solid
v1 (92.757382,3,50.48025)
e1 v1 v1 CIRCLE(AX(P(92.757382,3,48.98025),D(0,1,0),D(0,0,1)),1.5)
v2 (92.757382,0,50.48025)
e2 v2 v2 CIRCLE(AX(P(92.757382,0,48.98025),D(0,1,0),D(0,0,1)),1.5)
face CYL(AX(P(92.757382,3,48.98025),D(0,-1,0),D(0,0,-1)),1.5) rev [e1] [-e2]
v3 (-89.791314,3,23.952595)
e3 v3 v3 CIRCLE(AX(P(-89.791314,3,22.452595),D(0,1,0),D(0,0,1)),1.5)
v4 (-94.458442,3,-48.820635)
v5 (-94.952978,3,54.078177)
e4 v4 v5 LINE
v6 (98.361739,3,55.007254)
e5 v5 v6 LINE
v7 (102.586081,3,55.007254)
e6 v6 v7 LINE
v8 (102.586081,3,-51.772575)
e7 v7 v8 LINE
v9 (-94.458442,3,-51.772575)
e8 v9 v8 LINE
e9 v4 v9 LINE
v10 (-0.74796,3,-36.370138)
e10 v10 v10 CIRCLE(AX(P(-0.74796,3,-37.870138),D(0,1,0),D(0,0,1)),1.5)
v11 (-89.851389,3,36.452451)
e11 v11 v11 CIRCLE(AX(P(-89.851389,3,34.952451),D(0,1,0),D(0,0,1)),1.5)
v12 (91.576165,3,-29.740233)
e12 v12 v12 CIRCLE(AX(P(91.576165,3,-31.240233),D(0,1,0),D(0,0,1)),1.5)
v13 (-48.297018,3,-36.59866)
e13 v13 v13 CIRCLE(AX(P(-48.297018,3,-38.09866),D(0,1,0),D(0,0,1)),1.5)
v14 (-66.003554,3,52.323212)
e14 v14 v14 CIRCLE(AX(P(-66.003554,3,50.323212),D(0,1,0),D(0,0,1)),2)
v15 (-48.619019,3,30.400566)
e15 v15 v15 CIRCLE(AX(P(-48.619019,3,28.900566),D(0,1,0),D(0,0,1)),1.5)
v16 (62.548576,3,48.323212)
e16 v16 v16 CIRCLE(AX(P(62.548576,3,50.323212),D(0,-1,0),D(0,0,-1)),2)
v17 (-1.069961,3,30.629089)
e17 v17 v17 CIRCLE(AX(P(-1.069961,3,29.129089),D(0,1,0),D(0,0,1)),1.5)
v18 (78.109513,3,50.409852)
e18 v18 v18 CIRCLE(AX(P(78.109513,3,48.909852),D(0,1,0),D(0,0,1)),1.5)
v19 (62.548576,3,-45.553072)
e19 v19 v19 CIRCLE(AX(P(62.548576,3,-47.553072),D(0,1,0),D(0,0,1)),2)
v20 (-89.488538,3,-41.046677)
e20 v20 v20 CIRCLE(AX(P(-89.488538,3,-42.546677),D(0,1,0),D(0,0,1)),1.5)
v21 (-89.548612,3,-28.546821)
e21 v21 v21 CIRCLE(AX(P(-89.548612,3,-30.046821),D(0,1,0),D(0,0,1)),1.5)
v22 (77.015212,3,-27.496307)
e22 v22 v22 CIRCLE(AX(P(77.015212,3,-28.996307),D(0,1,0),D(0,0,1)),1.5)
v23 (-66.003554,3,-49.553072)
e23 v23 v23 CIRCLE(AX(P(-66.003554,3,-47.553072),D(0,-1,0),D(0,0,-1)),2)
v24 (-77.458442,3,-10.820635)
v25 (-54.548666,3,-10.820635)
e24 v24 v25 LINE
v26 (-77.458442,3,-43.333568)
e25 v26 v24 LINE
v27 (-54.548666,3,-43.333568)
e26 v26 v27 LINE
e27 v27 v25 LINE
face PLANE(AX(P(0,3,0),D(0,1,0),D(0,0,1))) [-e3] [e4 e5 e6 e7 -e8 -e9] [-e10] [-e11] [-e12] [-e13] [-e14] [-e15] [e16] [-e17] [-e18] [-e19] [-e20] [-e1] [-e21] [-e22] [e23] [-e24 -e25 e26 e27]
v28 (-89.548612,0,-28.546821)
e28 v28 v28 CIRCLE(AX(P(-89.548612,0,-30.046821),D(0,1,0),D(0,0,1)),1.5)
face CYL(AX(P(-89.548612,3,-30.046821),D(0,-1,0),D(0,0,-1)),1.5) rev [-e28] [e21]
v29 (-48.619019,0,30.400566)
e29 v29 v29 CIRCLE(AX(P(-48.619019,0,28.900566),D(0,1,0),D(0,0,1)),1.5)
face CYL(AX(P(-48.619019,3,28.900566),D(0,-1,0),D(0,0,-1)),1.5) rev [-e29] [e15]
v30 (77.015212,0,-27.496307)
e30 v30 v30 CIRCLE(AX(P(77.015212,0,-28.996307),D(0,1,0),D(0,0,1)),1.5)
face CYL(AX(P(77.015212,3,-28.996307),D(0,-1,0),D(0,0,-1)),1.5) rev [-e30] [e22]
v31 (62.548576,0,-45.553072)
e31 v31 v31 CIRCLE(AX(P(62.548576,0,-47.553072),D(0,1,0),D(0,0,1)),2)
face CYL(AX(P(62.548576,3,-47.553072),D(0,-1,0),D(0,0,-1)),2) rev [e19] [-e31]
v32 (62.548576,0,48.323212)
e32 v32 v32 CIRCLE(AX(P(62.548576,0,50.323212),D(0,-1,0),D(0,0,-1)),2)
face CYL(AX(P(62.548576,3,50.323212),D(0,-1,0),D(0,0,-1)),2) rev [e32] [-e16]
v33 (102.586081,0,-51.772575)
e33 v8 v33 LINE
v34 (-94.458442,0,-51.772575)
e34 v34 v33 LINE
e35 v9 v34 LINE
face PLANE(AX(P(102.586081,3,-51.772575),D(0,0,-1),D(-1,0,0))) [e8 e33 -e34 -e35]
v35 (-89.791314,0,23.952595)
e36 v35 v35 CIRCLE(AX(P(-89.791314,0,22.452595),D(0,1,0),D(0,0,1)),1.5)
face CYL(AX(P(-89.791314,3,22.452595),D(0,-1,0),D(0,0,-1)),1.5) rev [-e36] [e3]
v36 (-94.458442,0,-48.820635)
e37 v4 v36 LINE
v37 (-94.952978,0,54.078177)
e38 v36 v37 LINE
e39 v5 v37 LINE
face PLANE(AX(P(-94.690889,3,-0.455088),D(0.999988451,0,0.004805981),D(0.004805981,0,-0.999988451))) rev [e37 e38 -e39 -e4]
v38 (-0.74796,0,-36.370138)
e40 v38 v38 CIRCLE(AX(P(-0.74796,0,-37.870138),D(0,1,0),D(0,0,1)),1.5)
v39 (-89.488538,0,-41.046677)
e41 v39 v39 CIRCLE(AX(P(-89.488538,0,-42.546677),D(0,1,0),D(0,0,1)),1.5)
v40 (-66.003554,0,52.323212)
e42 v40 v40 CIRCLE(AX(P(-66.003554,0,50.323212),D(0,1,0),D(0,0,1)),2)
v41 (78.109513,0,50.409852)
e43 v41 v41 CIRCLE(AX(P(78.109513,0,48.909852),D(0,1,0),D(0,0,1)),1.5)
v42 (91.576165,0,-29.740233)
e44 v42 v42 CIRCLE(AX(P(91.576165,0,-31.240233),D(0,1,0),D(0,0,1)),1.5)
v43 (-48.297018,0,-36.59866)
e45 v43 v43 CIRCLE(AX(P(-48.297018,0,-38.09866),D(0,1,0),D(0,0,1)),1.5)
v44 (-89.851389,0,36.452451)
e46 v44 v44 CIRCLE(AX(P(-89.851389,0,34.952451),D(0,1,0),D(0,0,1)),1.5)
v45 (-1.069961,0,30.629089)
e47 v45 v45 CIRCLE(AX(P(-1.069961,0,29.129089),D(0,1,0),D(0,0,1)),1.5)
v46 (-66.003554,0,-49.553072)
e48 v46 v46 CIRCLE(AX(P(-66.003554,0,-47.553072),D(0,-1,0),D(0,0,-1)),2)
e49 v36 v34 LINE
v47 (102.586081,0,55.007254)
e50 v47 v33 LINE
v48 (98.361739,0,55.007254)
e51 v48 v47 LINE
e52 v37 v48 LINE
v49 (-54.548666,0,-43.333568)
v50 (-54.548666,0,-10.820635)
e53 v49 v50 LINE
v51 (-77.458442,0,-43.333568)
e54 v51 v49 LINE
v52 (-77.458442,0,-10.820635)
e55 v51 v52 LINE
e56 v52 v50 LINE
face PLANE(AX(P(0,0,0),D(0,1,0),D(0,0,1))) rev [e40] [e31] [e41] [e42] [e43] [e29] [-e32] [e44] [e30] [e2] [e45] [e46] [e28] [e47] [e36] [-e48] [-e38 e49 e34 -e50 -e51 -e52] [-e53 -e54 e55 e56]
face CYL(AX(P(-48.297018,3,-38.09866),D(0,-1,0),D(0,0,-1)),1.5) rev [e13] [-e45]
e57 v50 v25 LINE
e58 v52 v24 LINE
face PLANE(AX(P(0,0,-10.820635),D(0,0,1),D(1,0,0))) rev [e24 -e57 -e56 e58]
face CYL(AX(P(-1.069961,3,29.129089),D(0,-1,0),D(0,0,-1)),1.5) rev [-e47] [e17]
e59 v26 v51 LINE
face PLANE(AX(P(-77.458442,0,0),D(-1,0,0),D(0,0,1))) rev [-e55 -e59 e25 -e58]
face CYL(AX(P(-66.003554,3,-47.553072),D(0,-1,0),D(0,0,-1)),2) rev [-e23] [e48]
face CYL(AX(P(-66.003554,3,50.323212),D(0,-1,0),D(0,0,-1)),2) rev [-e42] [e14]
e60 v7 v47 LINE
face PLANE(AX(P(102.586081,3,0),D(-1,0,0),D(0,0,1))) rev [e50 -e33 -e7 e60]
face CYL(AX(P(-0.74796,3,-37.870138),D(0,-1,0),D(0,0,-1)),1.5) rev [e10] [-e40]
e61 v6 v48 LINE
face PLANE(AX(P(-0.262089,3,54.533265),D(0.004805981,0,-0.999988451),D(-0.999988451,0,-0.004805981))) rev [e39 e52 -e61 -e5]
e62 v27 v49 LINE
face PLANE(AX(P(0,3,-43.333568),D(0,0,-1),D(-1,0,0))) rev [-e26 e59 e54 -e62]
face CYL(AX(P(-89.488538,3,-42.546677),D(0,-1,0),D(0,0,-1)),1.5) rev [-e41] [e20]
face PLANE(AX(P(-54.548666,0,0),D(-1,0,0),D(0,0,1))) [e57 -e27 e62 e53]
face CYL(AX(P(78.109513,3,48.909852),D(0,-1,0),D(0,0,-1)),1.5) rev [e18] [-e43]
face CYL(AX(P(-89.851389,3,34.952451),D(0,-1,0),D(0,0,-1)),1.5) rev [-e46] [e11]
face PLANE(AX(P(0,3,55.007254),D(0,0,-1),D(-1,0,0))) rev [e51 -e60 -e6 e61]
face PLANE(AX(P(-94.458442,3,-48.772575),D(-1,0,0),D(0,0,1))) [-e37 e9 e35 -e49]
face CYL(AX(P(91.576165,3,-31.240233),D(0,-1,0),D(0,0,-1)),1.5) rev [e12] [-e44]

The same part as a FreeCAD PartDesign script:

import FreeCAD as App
import Part
import Sketcher
Q = App.Units.Quantity

doc = App.newDocument("Part")
params = doc.addObject("Spreadsheet::Sheet", "Params")
for row, (alias, value) in enumerate([
    ("sketch1_diameter", "3 mm"),
    ("sketch1_length", "10 mm"),
    ("sketch1_length2", "25 mm"),
    ("sketch1_length3", "63 mm"),
    ("sketch1_length4", "14.9 mm"),
    ("pad1_length", "3 mm"),
    ("pad2_length", "3 mm"),
    ("sketch4_height", "3 mm"),
    ("pad3_length", "3 mm"),
    ("sketch5_diameter", "4 mm"),
], start=1):
    params.set(f"A{row}", alias)
    params.set(f"B{row}", "=" + value)
    params.setAlias(f"B{row}", alias)

body = doc.addObject("PartDesign::Body", "Body")

sketch1 = body.newObject("Sketcher::SketchObject", "Sketch")
sketch1.AttachmentSupport = (doc.getObject("XZ_Plane"), [""])
sketch1.MapMode = "FlatFace"
sketch1.addGeometry(Part.LineSegment(App.Vector(-84.5, -26.8, 0), App.Vector(-84.5, -48.8, 0)), False)
sketch1.addGeometry(Part.LineSegment(App.Vector(-84.5, -48.8, 0), App.Vector(-94.5, -48.8, 0)), False)
sketch1.addGeometry(Part.LineSegment(App.Vector(-94.5, -48.8, 0), App.Vector(-94.6, -23.8, 0)), False)
sketch1.addGeometry(Part.LineSegment(App.Vector(-94.6, -23.8, 0), App.Vector(-94.9, 39.2, 0)), False)
sketch1.addGeometry(Part.LineSegment(App.Vector(-94.9, 39.2, 0), App.Vector(-95, 54.1, 0)), False)
sketch1.addGeometry(Part.LineSegment(App.Vector(-95, 54.1, 0), App.Vector(98.4, 55, 0)), False)
sketch1.addGeometry(Part.LineSegment(App.Vector(98.4, 55, 0), App.Vector(102.6, 55, 0)), False)
sketch1.addGeometry(Part.LineSegment(App.Vector(102.6, 55, 0), App.Vector(102.6, -48.8, 0)), False)
sketch1.addGeometry(Part.LineSegment(App.Vector(102.6, -48.8, 0), App.Vector(-62.7, -48.8, 0)), False)
sketch1.addGeometry(Part.LineSegment(App.Vector(-62.7, -48.8, 0), App.Vector(-62.7, -26.8, 0)), False)
sketch1.addGeometry(Part.LineSegment(App.Vector(-62.7, -26.8, 0), App.Vector(-84.5, -26.8, 0)), False)
sketch1.addGeometry(Part.Circle(App.Vector(-89.9, 35, 0), App.Vector(0, 0, 1), 1.5), False)
sketch1.addGeometry(Part.Circle(App.Vector(-48.6, 28.9, 0), App.Vector(0, 0, 1), 1.5), False)
sketch1.addGeometry(Part.Circle(App.Vector(-1.1, 29.1, 0), App.Vector(0, 0, 1), 1.5), False)
sketch1.addGeometry(Part.Circle(App.Vector(-89.8, 22.5, 0), App.Vector(0, 0, 1), 1.5), False)
sketch1.addGeometry(Part.Circle(App.Vector(78.1, 48.9, 0), App.Vector(0, 0, 1), 1.5), False)
sketch1.addGeometry(Part.Circle(App.Vector(92.8, 49, 0), App.Vector(0, 0, 1), 1.5), False)
sketch1.addGeometry(Part.Circle(App.Vector(-89.5, -30, 0), App.Vector(0, 0, 1), 1.5), False)
sketch1.addGeometry(Part.Circle(App.Vector(-89.5, -42.5, 0), App.Vector(0, 0, 1), 1.5), False)
sketch1.addGeometry(Part.Circle(App.Vector(-48.3, -38.1, 0), App.Vector(0, 0, 1), 1.5), False)
sketch1.addGeometry(Part.Circle(App.Vector(-0.7, -37.9, 0), App.Vector(0, 0, 1), 1.5), False)
sketch1.addGeometry(Part.Circle(App.Vector(77, -29, 0), App.Vector(0, 0, 1), 1.5), False)
sketch1.addGeometry(Part.Circle(App.Vector(91.6, -31.2, 0), App.Vector(0, 0, 1), 1.5), False)
sketch1.addConstraint(Sketcher.Constraint("Coincident", 0, 2, 1, 1))
sketch1.addConstraint(Sketcher.Constraint("Coincident", 1, 2, 2, 1))
sketch1.addConstraint(Sketcher.Constraint("Coincident", 2, 2, 3, 1))
sketch1.addConstraint(Sketcher.Constraint("Coincident", 3, 2, 4, 1))
sketch1.addConstraint(Sketcher.Constraint("Coincident", 4, 2, 5, 1))
sketch1.addConstraint(Sketcher.Constraint("Coincident", 5, 2, 6, 1))
sketch1.addConstraint(Sketcher.Constraint("Coincident", 6, 2, 7, 1))
sketch1.addConstraint(Sketcher.Constraint("Coincident", 7, 2, 8, 1))
sketch1.addConstraint(Sketcher.Constraint("Coincident", 8, 2, 9, 1))
sketch1.addConstraint(Sketcher.Constraint("Coincident", 9, 2, 10, 1))
sketch1.addConstraint(Sketcher.Constraint("Coincident", 10, 2, 0, 1))
sketch1.addConstraint(Sketcher.Constraint("Vertical", 0))
sketch1.addConstraint(Sketcher.Constraint("Horizontal", 6))
sketch1.addConstraint(Sketcher.Constraint("Vertical", 7))
sketch1.addConstraint(Sketcher.Constraint("Horizontal", 8))
sketch1.addConstraint(Sketcher.Constraint("Vertical", 9))
sketch1.addConstraint(Sketcher.Constraint("Horizontal", 10))
sketch1.addConstraint(Sketcher.Constraint("Equal", 11, 12))
sketch1.addConstraint(Sketcher.Constraint("Equal", 12, 13))
sketch1.addConstraint(Sketcher.Constraint("Equal", 13, 14))
sketch1.addConstraint(Sketcher.Constraint("Equal", 14, 15))
sketch1.addConstraint(Sketcher.Constraint("Equal", 15, 16))
sketch1.addConstraint(Sketcher.Constraint("Equal", 16, 17))
sketch1.addConstraint(Sketcher.Constraint("Equal", 17, 18))
sketch1.addConstraint(Sketcher.Constraint("Equal", 18, 19))
sketch1.addConstraint(Sketcher.Constraint("Equal", 19, 20))
sketch1.addConstraint(Sketcher.Constraint("Equal", 20, 21))
sketch1.addConstraint(Sketcher.Constraint("Equal", 21, 22))
sketch1.addConstraint(Sketcher.Constraint("Perpendicular", 1, 2))
sketch1.addConstraint(Sketcher.Constraint("Parallel", 2, 3))
sketch1.addConstraint(Sketcher.Constraint("Parallel", 3, 4))
sketch1.addConstraint(Sketcher.Constraint("Perpendicular", 4, 5))
sketch1.addConstraint(Sketcher.Constraint("Horizontal", 0, 2, 7, 2))
sketch1.addConstraint(Sketcher.Constraint("Diameter", 11, Q("3 mm")))
sketch1.addConstraint(Sketcher.Constraint("Distance", 1, Q("10 mm")))
sketch1.addConstraint(Sketcher.Constraint("Distance", 2, Q("25 mm")))
sketch1.addConstraint(Sketcher.Constraint("Distance", 3, Q("63 mm")))
sketch1.addConstraint(Sketcher.Constraint("Distance", 4, Q("14.9 mm")))
sketch1.addConstraint(Sketcher.Constraint("DistanceX", 12, 3, 19, 3, Q("0.322001 mm")))
sketch1.addConstraint(Sketcher.Constraint("DistanceX", 13, 3, 20, 3, Q("0.322001 mm")))
sketch1.addConstraint(Sketcher.Constraint("DistanceX", 6, 1, 6, 2, Q("4.224341 mm")))
sketch1.addConstraint(Sketcher.Constraint("DistanceX", 8, 2, 8, 1, Q("165.25171 mm")))
sketch1.addConstraint(Sketcher.Constraint("DistanceX", 10, 2, 10, 1, Q("21.792929 mm")))
sketch1.addConstraint(Sketcher.Constraint("DistanceY", 7, 2, 7, 1, Q("103.779829 mm")))
sketch1.addConstraint(Sketcher.Constraint("DistanceY", 11, 3, 15, 3, Q("13.957401 mm")))
sketch1.addConstraint(Sketcher.Constraint("DistanceY", 15, 3, 16, 3, Q("0.070398 mm")))
sketch1.addConstraint(Sketcher.Constraint("DistanceX", 12, 3, 16, 3, Q("141.376401 mm")))
sketch1.addConstraint(Sketcher.Constraint("DistanceX", 21, 3, 15, 3, Q("1.094301 mm")))
sketch1.addConstraint(Sketcher.Constraint("DistanceX", 13, 3, 5, 2, Q("99.4317 mm")))
sketch1.addConstraint(Sketcher.Constraint("DistanceX", 16, 3, 6, 2, Q("9.828699 mm")))
sketch1.addConstraint(Sketcher.Constraint("DistanceY", 0, 2, 0, 1, Q("21.938607 mm")))
sketch1.addConstraint(Sketcher.Constraint("DistanceX", 11, 3, -1, 1, Q("89.851389 mm")))
sketch1.addConstraint(Sketcher.Constraint("DistanceY", -1, 1, 11, 3, Q("34.952451 mm")))
sketch1.addConstraint(Sketcher.Constraint("DistanceX", 12, 3, -1, 1, Q("48.619019 mm")))
sketch1.addConstraint(Sketcher.Constraint("DistanceY", -1, 1, 13, 3, Q("29.129089 mm")))
sketch1.addConstraint(Sketcher.Constraint("DistanceY", 17, 3, -1, 1, Q("30.046821 mm")))
sketch1.addConstraint(Sketcher.Constraint("DistanceY", 19, 3, -1, 1, Q("38.09866 mm")))
sketch1.addConstraint(Sketcher.Constraint("DistanceY", -1, 1, 3, 2, Q("39.178349 mm")))
sketch1.addConstraint(Sketcher.Constraint("DistanceY", 14, 3, 12, 3, Q("6.447971 mm")))
sketch1.addConstraint(Sketcher.Constraint("DistanceX", 12, 3, 15, 3, Q("126.728532 mm")))
sketch1.addConstraint(Sketcher.Constraint("DistanceX", 17, 3, 13, 3, Q("88.478651 mm")))
sketch1.addConstraint(Sketcher.Constraint("DistanceX", 11, 3, 18, 3, Q("0.362852 mm")))
sketch1.addConstraint(Sketcher.Constraint("DistanceY", 18, 3, 11, 3, Q("77.499128 mm")))
sketch1.addConstraint(Sketcher.Constraint("DistanceY", 18, 3, 20, 3, Q("4.676539 mm")))
sketch1.addConstraint(Sketcher.Constraint("DistanceY", 21, 3, 15, 3, Q("77.906159 mm")))
sketch1.addConstraint(Sketcher.Constraint("DistanceX", 15, 3, 22, 3, Q("13.466652 mm")))
sketch1.addConstraint(Sketcher.Constraint("DistanceY", 22, 3, 13, 3, Q("60.369321 mm")))
sketch1.addConstraint(Sketcher.Constraint("DistanceY", 0, 2, 14, 3, Q("71.22517 mm")))
sketch1.addConstraint(Sketcher.Constraint("DistanceX", 1, 2, 14, 3, Q("4.667128 mm")))
sketch1.setExpression("Constraints[33]", "Params.sketch1_diameter")
sketch1.setExpression("Constraints[34]", "Params.sketch1_length")
sketch1.setExpression("Constraints[35]", "Params.sketch1_length2")
sketch1.setExpression("Constraints[36]", "Params.sketch1_length3")
sketch1.setExpression("Constraints[37]", "Params.sketch1_length4")
pad1 = body.newObject("PartDesign::Pad", "Pad")
pad1.Profile = sketch1
pad1.setExpression("Length", "Params.pad1_length")
pad1.Reversed = True

sketch2 = body.newObject("Sketcher::SketchObject", "Sketch001")
sketch2.AttachmentSupport = (doc.getObject("XZ_Plane"), [""])
sketch2.MapMode = "FlatFace"
sketch2.AttachmentOffset = App.Placement(App.Vector(0, 0, -3), App.Rotation())
sketch2.addGeometry(Part.LineSegment(App.Vector(-63, -27, 0), App.Vector(-77, -27, 0)), False)
sketch2.addGeometry(Part.LineSegment(App.Vector(-77, -27, 0), App.Vector(-77, -11, 0)), False)
sketch2.addGeometry(Part.LineSegment(App.Vector(-77, -11, 0), App.Vector(-55, -11, 0)), False)
sketch2.addGeometry(Part.LineSegment(App.Vector(-55, -11, 0), App.Vector(-55, -49, 0)), False)
sketch2.addGeometry(Part.LineSegment(App.Vector(-55, -49, 0), App.Vector(-63, -49, 0)), False)
sketch2.addGeometry(Part.LineSegment(App.Vector(-63, -49, 0), App.Vector(-63, -27, 0)), False)
sketch2.addConstraint(Sketcher.Constraint("Coincident", 0, 2, 1, 1))
sketch2.addConstraint(Sketcher.Constraint("Coincident", 1, 2, 2, 1))
sketch2.addConstraint(Sketcher.Constraint("Coincident", 2, 2, 3, 1))
sketch2.addConstraint(Sketcher.Constraint("Coincident", 3, 2, 4, 1))
sketch2.addConstraint(Sketcher.Constraint("Coincident", 4, 2, 5, 1))
sketch2.addConstraint(Sketcher.Constraint("Coincident", 5, 2, 0, 1))
sketch2.addConstraint(Sketcher.Constraint("Horizontal", 0))
sketch2.addConstraint(Sketcher.Constraint("Vertical", 1))
sketch2.addConstraint(Sketcher.Constraint("Horizontal", 2))
sketch2.addConstraint(Sketcher.Constraint("Vertical", 3))
sketch2.addConstraint(Sketcher.Constraint("Horizontal", 4))
sketch2.addConstraint(Sketcher.Constraint("Vertical", 5))
sketch2.addConstraint(Sketcher.Constraint("DistanceY", 3, 2, 3, 1, Q("37.95194 mm")))
sketch2.addConstraint(Sketcher.Constraint("DistanceX", 0, 2, 0, 1, Q("14.792813 mm")))
sketch2.addConstraint(Sketcher.Constraint("DistanceX", 2, 1, 2, 2, Q("22.909776 mm")))
sketch2.addConstraint(Sketcher.Constraint("DistanceY", 1, 1, 1, 2, Q("16.013333 mm")))
sketch2.addConstraint(Sketcher.Constraint("DistanceY", 0, 2, -1, 1, Q("26.833968 mm")))
sketch2.addConstraint(Sketcher.Constraint("DistanceX", 4, 2, -1, 1, Q("62.665629 mm")))
pocket1 = body.newObject("PartDesign::Pocket", "Pocket")
pocket1.Profile = sketch2
pocket1.Type = "ThroughAll"
pocket1.Midplane = True

sketch3 = body.newObject("Sketcher::SketchObject", "Sketch002")
sketch3.AttachmentSupport = (doc.getObject("XZ_Plane"), [""])
sketch3.MapMode = "FlatFace"
sketch3.addGeometry(Part.LineSegment(App.Vector(-77, -27, 0), App.Vector(-84, -27, 0)), False)
sketch3.addGeometry(Part.LineSegment(App.Vector(-84, -27, 0), App.Vector(-84, -49, 0)), False)
sketch3.addGeometry(Part.LineSegment(App.Vector(-84, -49, 0), App.Vector(-55, -49, 0)), False)
sketch3.addGeometry(Part.LineSegment(App.Vector(-55, -49, 0), App.Vector(-55, -43, 0)), False)
sketch3.addGeometry(Part.LineSegment(App.Vector(-55, -43, 0), App.Vector(-77, -43, 0)), False)
sketch3.addGeometry(Part.LineSegment(App.Vector(-77, -43, 0), App.Vector(-77, -27, 0)), False)
sketch3.addConstraint(Sketcher.Constraint("Coincident", 0, 2, 1, 1))
sketch3.addConstraint(Sketcher.Constraint("Coincident", 1, 2, 2, 1))
sketch3.addConstraint(Sketcher.Constraint("Coincident", 2, 2, 3, 1))
sketch3.addConstraint(Sketcher.Constraint("Coincident", 3, 2, 4, 1))
sketch3.addConstraint(Sketcher.Constraint("Coincident", 4, 2, 5, 1))
sketch3.addConstraint(Sketcher.Constraint("Coincident", 5, 2, 0, 1))
sketch3.addConstraint(Sketcher.Constraint("Horizontal", 0))
sketch3.addConstraint(Sketcher.Constraint("Vertical", 1))
sketch3.addConstraint(Sketcher.Constraint("Horizontal", 2))
sketch3.addConstraint(Sketcher.Constraint("Vertical", 3))
sketch3.addConstraint(Sketcher.Constraint("Horizontal", 4))
sketch3.addConstraint(Sketcher.Constraint("Vertical", 5))
sketch3.addConstraint(Sketcher.Constraint("DistanceY", 5, 1, 5, 2, Q("16.4996 mm")))
sketch3.addConstraint(Sketcher.Constraint("DistanceX", 2, 1, 2, 2, Q("29.909891 mm")))
sketch3.addConstraint(Sketcher.Constraint("DistanceX", 0, 2, 0, 1, Q("7.000115 mm")))
sketch3.addConstraint(Sketcher.Constraint("DistanceY", 1, 2, 1, 1, Q("21.938607 mm")))
sketch3.addConstraint(Sketcher.Constraint("DistanceY", 0, 2, -1, 1, Q("26.833968 mm")))
sketch3.addConstraint(Sketcher.Constraint("DistanceX", 0, 2, -1, 1, Q("84.458558 mm")))
pad2 = body.newObject("PartDesign::Pad", "Pad001")
pad2.Profile = sketch3
pad2.setExpression("Length", "Params.pad2_length")
pad2.Reversed = True

sketch4 = body.newObject("Sketcher::SketchObject", "Sketch003")
sketch4.AttachmentSupport = (doc.getObject("XZ_Plane"), [""])
sketch4.MapMode = "FlatFace"
sketch4.addGeometry(Part.LineSegment(App.Vector(-94.5, -48.8, 0), App.Vector(-94.5, -51.8, 0)), False)
sketch4.addGeometry(Part.LineSegment(App.Vector(-94.5, -51.8, 0), App.Vector(102.6, -51.8, 0)), False)
sketch4.addGeometry(Part.LineSegment(App.Vector(102.6, -51.8, 0), App.Vector(102.6, -48.8, 0)), False)
sketch4.addGeometry(Part.LineSegment(App.Vector(102.6, -48.8, 0), App.Vector(-94.5, -48.8, 0)), False)
sketch4.addConstraint(Sketcher.Constraint("Coincident", 0, 2, 1, 1))
sketch4.addConstraint(Sketcher.Constraint("Coincident", 1, 2, 2, 1))
sketch4.addConstraint(Sketcher.Constraint("Coincident", 2, 2, 3, 1))
sketch4.addConstraint(Sketcher.Constraint("Coincident", 3, 2, 0, 1))
sketch4.addConstraint(Sketcher.Constraint("Vertical", 0))
sketch4.addConstraint(Sketcher.Constraint("Horizontal", 1))
sketch4.addConstraint(Sketcher.Constraint("Vertical", 2))
sketch4.addConstraint(Sketcher.Constraint("Horizontal", 3))
sketch4.addConstraint(Sketcher.Constraint("DistanceY", 0, 2, 0, 1, Q("3 mm")))
sketch4.addConstraint(Sketcher.Constraint("DistanceX", 1, 1, 1, 2, Q("197.044523 mm")))
sketch4.addConstraint(Sketcher.Constraint("DistanceX", -1, 1, 1, 2, Q("102.586081 mm")))
sketch4.addConstraint(Sketcher.Constraint("DistanceY", 0, 2, -1, 1, Q("51.772575 mm")))
sketch4.setExpression("Constraints[8]", "Params.sketch4_height")
pad3 = body.newObject("PartDesign::Pad", "Pad002")
pad3.Profile = sketch4
pad3.setExpression("Length", "Params.pad3_length")
pad3.Reversed = True

sketch5 = body.newObject("Sketcher::SketchObject", "Sketch004")
sketch5.AttachmentSupport = (doc.getObject("XZ_Plane"), [""])
sketch5.MapMode = "FlatFace"
sketch5.addGeometry(Part.Circle(App.Vector(-66, -47.6, 0), App.Vector(0, 0, 1), 2), False)
sketch5.addGeometry(Part.Circle(App.Vector(62.5, -47.6, 0), App.Vector(0, 0, 1), 2), False)
sketch5.addGeometry(Part.Circle(App.Vector(62.5, 50.3, 0), App.Vector(0, 0, 1), 2), False)
sketch5.addGeometry(Part.Circle(App.Vector(-66, 50.3, 0), App.Vector(0, 0, 1), 2), False)
sketch5.addConstraint(Sketcher.Constraint("Equal", 0, 1))
sketch5.addConstraint(Sketcher.Constraint("Equal", 1, 2))
sketch5.addConstraint(Sketcher.Constraint("Equal", 2, 3))
sketch5.addConstraint(Sketcher.Constraint("Horizontal", 0, 3, 1, 3))
sketch5.addConstraint(Sketcher.Constraint("Horizontal", 2, 3, 3, 3))
sketch5.addConstraint(Sketcher.Constraint("Vertical", 1, 3, 2, 3))
sketch5.addConstraint(Sketcher.Constraint("Vertical", 0, 3, 3, 3))
sketch5.addConstraint(Sketcher.Constraint("Diameter", 0, Q("4 mm")))
sketch5.addConstraint(Sketcher.Constraint("DistanceY", 0, 3, -1, 1, Q("47.553072 mm")))
sketch5.addConstraint(Sketcher.Constraint("DistanceX", 0, 3, 1, 3, Q("128.552131 mm")))
sketch5.addConstraint(Sketcher.Constraint("DistanceX", 0, 3, -1, 1, Q("66.003554 mm")))
sketch5.addConstraint(Sketcher.Constraint("DistanceY", -1, 1, 2, 3, Q("50.323212 mm")))
sketch5.setExpression("Constraints[7]", "Params.sketch5_diameter")
pocket2 = body.newObject("PartDesign::Pocket", "Pocket001")
pocket2.Profile = sketch5
pocket2.Type = "ThroughAll"
pocket2.Midplane = True

doc.recompute()
